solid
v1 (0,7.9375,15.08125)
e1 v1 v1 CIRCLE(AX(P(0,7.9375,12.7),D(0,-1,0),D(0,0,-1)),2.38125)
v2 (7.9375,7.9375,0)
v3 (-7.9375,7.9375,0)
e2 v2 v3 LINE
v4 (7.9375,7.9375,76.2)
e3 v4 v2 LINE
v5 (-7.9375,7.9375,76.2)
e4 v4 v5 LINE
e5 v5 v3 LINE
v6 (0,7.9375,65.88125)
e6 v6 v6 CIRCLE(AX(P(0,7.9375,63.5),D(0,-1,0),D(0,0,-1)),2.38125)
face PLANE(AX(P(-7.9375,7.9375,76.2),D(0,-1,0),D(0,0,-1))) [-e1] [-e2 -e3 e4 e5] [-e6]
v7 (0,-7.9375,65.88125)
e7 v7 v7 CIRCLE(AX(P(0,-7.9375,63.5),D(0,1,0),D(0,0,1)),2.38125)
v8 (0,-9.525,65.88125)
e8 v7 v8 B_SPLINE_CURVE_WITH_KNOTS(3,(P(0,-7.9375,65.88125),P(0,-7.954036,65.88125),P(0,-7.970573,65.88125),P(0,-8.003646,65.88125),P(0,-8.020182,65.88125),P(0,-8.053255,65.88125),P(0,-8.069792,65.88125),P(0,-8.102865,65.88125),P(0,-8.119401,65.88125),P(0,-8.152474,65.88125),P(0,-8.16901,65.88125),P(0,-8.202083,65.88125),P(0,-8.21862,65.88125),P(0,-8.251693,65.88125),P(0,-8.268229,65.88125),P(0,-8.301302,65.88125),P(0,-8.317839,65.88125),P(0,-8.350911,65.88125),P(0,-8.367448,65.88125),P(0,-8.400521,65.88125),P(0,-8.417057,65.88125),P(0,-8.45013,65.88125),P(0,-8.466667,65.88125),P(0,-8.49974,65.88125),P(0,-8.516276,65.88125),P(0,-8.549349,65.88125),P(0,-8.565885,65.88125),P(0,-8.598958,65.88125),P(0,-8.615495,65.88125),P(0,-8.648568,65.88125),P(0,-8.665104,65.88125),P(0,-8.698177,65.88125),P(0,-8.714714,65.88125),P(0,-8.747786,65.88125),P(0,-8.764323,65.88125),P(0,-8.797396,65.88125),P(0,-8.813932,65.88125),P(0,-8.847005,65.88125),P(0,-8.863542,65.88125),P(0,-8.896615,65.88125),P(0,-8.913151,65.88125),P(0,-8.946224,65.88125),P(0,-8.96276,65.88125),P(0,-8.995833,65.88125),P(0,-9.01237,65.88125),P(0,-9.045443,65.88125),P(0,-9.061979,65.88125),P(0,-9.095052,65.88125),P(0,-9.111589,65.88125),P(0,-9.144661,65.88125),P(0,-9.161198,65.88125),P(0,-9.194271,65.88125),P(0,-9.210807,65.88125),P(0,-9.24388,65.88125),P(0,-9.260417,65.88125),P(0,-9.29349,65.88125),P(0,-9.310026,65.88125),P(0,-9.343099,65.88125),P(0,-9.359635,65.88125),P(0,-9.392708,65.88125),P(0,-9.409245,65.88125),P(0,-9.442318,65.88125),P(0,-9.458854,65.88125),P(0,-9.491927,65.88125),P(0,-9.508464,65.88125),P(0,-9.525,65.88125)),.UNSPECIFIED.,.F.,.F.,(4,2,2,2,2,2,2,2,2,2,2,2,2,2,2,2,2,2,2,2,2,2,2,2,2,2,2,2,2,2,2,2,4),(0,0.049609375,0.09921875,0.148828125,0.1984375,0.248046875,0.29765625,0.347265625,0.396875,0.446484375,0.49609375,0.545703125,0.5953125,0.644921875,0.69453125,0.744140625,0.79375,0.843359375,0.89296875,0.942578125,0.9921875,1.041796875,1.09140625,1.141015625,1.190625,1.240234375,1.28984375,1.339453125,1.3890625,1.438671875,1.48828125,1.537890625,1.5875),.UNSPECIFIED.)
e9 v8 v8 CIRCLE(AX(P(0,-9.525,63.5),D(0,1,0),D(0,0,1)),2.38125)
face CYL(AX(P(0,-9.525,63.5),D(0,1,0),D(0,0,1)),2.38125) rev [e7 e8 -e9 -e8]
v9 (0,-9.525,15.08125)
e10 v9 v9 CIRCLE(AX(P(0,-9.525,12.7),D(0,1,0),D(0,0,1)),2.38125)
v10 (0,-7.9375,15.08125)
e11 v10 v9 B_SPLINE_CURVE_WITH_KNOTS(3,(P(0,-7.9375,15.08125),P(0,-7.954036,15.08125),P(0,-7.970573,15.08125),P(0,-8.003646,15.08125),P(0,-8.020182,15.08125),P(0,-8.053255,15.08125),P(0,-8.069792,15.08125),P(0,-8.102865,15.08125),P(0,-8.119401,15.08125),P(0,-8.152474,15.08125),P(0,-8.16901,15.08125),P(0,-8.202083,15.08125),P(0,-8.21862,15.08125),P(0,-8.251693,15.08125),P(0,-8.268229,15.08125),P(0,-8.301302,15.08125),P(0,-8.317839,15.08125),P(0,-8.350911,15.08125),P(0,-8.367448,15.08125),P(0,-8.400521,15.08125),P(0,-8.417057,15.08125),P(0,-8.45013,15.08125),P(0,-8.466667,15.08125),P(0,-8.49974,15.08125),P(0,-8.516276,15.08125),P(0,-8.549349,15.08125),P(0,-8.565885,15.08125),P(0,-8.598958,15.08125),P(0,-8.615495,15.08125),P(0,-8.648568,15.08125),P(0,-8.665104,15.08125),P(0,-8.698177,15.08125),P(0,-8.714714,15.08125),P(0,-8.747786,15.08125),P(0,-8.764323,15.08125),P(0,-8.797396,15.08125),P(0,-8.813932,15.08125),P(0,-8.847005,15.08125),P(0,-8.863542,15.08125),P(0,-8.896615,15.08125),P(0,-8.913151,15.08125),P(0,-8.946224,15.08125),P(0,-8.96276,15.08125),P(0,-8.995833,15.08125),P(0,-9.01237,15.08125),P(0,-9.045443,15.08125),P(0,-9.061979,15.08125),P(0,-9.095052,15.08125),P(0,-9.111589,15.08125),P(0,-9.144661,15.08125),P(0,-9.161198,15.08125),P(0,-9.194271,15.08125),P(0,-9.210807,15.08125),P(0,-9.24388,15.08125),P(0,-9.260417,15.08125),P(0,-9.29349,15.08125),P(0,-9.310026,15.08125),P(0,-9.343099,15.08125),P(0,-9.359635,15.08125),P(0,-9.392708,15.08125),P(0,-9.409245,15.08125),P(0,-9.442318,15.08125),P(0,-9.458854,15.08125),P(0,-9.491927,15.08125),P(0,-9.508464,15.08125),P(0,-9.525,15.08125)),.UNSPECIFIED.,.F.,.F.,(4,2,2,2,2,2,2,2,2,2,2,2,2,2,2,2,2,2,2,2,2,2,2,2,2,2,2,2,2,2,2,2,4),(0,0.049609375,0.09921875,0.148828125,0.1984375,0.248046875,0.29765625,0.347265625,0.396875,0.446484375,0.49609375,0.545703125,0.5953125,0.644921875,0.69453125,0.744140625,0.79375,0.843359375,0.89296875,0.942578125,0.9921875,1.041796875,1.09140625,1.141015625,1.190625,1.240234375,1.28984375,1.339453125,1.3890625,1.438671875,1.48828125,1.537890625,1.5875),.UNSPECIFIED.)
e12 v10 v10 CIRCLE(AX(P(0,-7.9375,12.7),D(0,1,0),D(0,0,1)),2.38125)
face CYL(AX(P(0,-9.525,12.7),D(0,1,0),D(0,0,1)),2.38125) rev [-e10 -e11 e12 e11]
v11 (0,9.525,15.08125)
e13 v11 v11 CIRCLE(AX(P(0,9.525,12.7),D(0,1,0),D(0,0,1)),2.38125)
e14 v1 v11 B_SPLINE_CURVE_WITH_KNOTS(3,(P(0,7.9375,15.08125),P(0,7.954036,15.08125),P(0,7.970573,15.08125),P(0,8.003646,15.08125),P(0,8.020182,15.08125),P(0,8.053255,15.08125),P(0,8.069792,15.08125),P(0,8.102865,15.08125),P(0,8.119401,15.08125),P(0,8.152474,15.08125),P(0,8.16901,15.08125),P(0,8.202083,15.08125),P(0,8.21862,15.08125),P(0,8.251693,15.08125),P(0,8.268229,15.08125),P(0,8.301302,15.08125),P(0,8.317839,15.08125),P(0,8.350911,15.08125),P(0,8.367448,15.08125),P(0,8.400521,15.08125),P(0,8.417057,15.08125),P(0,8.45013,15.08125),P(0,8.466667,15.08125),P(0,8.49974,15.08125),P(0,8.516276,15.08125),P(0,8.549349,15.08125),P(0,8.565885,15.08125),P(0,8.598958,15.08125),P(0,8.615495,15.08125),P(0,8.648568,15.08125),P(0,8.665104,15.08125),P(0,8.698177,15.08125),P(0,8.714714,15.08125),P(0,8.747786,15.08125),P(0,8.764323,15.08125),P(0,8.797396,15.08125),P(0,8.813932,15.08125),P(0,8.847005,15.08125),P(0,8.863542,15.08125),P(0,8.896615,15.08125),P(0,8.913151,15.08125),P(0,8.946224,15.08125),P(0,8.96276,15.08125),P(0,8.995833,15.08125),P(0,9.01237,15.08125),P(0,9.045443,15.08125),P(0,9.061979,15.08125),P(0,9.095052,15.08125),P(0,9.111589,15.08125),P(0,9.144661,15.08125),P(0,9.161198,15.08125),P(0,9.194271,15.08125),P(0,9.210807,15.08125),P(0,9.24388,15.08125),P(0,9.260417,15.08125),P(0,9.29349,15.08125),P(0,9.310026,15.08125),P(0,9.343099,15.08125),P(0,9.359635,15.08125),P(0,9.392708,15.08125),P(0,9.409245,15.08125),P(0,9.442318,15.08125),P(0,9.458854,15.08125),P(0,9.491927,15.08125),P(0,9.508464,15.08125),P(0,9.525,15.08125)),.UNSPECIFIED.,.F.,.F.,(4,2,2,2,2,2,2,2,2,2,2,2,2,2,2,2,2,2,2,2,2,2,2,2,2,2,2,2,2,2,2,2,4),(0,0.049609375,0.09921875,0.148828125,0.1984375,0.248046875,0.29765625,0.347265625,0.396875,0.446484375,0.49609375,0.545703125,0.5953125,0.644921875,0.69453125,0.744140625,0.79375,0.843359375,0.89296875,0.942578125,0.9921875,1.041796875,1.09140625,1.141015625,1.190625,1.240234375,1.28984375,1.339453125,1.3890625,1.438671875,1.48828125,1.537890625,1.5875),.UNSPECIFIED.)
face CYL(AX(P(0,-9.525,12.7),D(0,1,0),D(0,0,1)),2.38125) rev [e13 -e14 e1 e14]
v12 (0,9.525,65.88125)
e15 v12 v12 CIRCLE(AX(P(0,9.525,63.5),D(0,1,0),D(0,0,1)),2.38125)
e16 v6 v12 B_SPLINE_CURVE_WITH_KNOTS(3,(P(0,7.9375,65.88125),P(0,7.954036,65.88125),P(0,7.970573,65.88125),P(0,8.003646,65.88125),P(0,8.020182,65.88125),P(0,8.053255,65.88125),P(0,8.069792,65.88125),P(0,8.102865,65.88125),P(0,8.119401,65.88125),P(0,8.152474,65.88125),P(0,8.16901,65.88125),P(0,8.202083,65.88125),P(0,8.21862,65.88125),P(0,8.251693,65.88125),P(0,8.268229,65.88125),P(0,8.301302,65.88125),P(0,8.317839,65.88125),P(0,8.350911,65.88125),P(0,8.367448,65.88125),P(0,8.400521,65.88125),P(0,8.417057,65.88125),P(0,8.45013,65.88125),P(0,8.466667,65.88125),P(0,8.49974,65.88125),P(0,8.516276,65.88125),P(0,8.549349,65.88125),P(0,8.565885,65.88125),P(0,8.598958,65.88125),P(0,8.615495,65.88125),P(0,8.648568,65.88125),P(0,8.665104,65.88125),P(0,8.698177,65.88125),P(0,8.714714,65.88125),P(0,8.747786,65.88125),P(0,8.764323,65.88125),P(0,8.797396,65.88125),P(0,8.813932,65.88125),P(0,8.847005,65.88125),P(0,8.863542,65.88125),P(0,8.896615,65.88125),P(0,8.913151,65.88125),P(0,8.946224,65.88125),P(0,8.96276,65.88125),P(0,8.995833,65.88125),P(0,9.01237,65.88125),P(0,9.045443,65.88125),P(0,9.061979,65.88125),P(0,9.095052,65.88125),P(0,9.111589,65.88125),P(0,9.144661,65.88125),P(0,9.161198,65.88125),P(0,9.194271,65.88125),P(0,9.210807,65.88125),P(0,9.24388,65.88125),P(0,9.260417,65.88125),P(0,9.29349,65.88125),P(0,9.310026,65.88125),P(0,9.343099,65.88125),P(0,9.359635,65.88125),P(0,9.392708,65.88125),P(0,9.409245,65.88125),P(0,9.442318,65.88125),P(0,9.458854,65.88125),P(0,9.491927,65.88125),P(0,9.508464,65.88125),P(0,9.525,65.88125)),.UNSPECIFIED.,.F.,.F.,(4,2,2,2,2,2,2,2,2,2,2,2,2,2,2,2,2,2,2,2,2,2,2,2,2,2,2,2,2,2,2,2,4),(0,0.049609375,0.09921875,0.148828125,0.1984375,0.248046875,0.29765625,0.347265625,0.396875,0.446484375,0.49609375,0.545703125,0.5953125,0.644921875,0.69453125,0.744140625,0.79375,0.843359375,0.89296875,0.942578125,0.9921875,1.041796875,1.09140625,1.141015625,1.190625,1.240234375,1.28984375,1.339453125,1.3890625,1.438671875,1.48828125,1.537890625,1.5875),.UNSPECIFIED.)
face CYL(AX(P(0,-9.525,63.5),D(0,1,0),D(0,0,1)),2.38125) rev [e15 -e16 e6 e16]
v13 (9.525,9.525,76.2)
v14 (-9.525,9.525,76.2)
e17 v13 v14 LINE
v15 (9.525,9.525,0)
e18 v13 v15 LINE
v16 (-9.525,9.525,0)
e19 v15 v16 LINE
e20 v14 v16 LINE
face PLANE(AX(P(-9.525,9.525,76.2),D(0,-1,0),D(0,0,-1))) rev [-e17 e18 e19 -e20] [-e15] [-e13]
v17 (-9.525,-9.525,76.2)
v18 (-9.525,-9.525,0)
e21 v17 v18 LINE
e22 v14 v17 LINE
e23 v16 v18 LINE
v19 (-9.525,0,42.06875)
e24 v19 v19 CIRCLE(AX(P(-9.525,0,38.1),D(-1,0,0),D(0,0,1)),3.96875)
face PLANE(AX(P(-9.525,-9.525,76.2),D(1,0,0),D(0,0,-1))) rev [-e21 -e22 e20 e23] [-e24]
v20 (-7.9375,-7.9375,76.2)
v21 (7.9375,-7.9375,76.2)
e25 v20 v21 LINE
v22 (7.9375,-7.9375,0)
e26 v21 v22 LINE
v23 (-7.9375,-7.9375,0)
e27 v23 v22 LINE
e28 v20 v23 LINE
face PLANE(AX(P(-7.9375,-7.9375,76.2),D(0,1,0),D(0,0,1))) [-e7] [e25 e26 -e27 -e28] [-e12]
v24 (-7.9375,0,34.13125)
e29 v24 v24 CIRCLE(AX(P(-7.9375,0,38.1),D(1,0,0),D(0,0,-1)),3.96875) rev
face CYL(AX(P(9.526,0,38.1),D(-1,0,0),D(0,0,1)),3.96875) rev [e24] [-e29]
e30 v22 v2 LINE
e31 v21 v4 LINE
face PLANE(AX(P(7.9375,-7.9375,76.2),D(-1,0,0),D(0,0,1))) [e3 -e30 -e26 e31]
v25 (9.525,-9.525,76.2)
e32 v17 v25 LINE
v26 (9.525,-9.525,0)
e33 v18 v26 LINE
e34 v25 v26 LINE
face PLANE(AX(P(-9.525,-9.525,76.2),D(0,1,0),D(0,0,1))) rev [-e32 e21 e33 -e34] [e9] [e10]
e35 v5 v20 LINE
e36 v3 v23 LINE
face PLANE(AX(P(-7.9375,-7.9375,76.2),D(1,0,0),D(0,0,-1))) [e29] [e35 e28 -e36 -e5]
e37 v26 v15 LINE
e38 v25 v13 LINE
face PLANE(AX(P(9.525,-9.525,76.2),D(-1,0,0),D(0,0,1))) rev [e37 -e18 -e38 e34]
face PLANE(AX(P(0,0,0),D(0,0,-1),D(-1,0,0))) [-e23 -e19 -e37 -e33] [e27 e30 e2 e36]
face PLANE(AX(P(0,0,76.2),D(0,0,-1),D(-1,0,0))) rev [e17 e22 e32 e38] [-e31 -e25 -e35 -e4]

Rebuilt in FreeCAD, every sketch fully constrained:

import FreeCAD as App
import Part
import Sketcher
from FreeCAD import Vector
Q = App.Units.Quantity

doc = App.newDocument("Part")
params = doc.addObject("Spreadsheet::Sheet", "Params")
for row, (alias, value) in enumerate([
    ("sketch1_width", "0.75 in"),
    ("sketch1_width2", "0.625 in"),
    ("pad1_length", "3 in"),
    ("sketch2_diameter", "0.1875 in"),
    ("sketch3_diameter", "0.3125 in"),
], start=1):
    params.set(f"A{row}", alias)
    params.set(f"B{row}", "=" + value)
    params.setAlias(f"B{row}", alias)

body = doc.addObject("PartDesign::Body", "Body")

sketch1 = body.newObject("Sketcher::SketchObject", "Sketch")
sketch1.AttachmentSupport = (doc.getObject("XY_Plane"), [""])
sketch1.MapMode = "FlatFace"
sketch1.addGeometry([
    Part.LineSegment(Vector(-9.525, 9.525, 0), Vector(-9.525, -9.525, 0)),
    Part.LineSegment(Vector(-9.525, -9.525, 0), Vector(9.525, -9.525, 0)),
    Part.LineSegment(Vector(9.525, -9.525, 0), Vector(9.525, 9.525, 0)),
    Part.LineSegment(Vector(9.525, 9.525, 0), Vector(-9.525, 9.525, 0)),
    Part.LineSegment(Vector(7.9375, -7.9375, 0), Vector(-7.9375, -7.9375, 0)),
    Part.LineSegment(Vector(-7.9375, -7.9375, 0), Vector(-7.9375, 7.9375, 0)),
    Part.LineSegment(Vector(-7.9375, 7.9375, 0), Vector(7.9375, 7.9375, 0)),
    Part.LineSegment(Vector(7.9375, 7.9375, 0), Vector(7.9375, -7.9375, 0)),
], False)
sketch1.addConstraint([
    Sketcher.Constraint("Coincident", 0, 2, 1, 1),
    Sketcher.Constraint("Coincident", 1, 2, 2, 1),
    Sketcher.Constraint("Coincident", 2, 2, 3, 1),
    Sketcher.Constraint("Coincident", 3, 2, 0, 1),
    Sketcher.Constraint("Coincident", 4, 2, 5, 1),
    Sketcher.Constraint("Coincident", 5, 2, 6, 1),
    Sketcher.Constraint("Coincident", 6, 2, 7, 1),
    Sketcher.Constraint("Coincident", 7, 2, 4, 1),
    Sketcher.Constraint("Vertical", 0),
    Sketcher.Constraint("Horizontal", 1),
    Sketcher.Constraint("Vertical", 2),
    Sketcher.Constraint("Horizontal", 3),
    Sketcher.Constraint("Horizontal", 4),
    Sketcher.Constraint("Vertical", 5),
    Sketcher.Constraint("Horizontal", 6),
    Sketcher.Constraint("Vertical", 7),
    Sketcher.Constraint("Symmetric", 0, 2, 2, 2, -1, 1),
    Sketcher.Constraint("Symmetric", 4, 2, 6, 2, -1, 1),
    Sketcher.Constraint("Equal", 3, 0),
    Sketcher.Constraint("Equal", 6, 5),
    Sketcher.Constraint("DistanceX", 1, 1, 1, 2, Q("0.75 in")),
    Sketcher.Constraint("DistanceX", 4, 2, 4, 1, Q("0.625 in")),
])
sketch1.setExpression("Constraints[20]", "Params.sketch1_width")
sketch1.setExpression("Constraints[21]", "Params.sketch1_width2")
pad1 = body.newObject("PartDesign::Pad", "Pad")
pad1.Profile = sketch1
pad1.setExpression("Length", "Params.pad1_length")

sketch2 = body.newObject("Sketcher::SketchObject", "Sketch001")
sketch2.AttachmentSupport = (doc.getObject("XZ_Plane"), [""])
sketch2.MapMode = "FlatFace"
sketch2.addGeometry([
    Part.Circle(Vector(0, 12.7, 0), Vector(0, 0, 1), 2.38125),
    Part.Circle(Vector(0, 63.5, 0), Vector(0, 0, 1), 2.38125),
], False)
sketch2.addConstraint([
    Sketcher.Constraint("Equal", 0, 1),
    Sketcher.Constraint("PointOnObject", 0, 3, -2),
    Sketcher.Constraint("PointOnObject", 1, 3, -2),
    Sketcher.Constraint("Diameter", 0, Q("0.1875 in")),
    Sketcher.Constraint("DistanceY", 0, 3, 1, 3, Q("2 in")),
    Sketcher.Constraint("DistanceY", -1, 1, 0, 3, Q("0.5 in")),
])
sketch2.setExpression("Constraints[3]", "Params.sketch2_diameter")
pocket1 = body.newObject("PartDesign::Pocket", "Pocket")
pocket1.Profile = sketch2
pocket1.Type = "ThroughAll"
pocket1.Midplane = True

sketch3 = body.newObject("Sketcher::SketchObject", "Sketch002")
sketch3.AttachmentSupport = (doc.getObject("YZ_Plane"), [""])
sketch3.MapMode = "FlatFace"
sketch3.AttachmentOffset = App.Placement(Vector(0, 0, -0.375 * 25.4), App.Rotation())
sketch3.addGeometry(Part.Circle(Vector(0, 38.1, 0), Vector(0, 0, 1), 3.96875), False)
sketch3.addConstraint([
    Sketcher.Constraint("PointOnObject", 0, 3, -2),
    Sketcher.Constraint("Diameter", 0, Q("0.3125 in")),
    Sketcher.Constraint("DistanceY", -1, 1, 0, 3, Q("1.5 in")),
])
sketch3.setExpression("Constraints[1]", "Params.sketch3_diameter")
pocket2 = body.newObject("PartDesign::Pocket", "Pocket001")
pocket2.Profile = sketch3
pocket2.Type = "UpToFirst"
pocket2.Reversed = True

doc.recompute()
